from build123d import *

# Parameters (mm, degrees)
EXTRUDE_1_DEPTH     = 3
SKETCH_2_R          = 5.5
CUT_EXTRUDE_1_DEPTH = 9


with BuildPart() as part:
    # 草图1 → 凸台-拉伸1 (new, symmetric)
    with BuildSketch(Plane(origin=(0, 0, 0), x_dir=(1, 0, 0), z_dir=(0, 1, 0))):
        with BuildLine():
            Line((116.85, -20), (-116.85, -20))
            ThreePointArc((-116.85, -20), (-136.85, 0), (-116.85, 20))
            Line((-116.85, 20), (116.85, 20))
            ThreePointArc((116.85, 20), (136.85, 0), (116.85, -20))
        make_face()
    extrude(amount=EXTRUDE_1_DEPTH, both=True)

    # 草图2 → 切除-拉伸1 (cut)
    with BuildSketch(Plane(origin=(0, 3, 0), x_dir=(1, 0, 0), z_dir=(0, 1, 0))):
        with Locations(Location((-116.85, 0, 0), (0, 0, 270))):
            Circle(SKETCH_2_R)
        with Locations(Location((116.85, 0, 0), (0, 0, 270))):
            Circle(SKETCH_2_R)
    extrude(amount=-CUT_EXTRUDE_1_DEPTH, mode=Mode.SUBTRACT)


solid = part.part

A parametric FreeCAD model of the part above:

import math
import FreeCAD as App
import Part
import Sketcher

V = App.Vector

doc = App.newDocument("Part")
body = doc.addObject("PartDesign::Body", "Body")

# Sketch on XZ plane
sketch1 = doc.addObject("Sketcher::SketchObject", "Sketch")
body.addObject(sketch1)
sketch1.AttachmentSupport = (doc.XZ_Plane, [""])
sketch1.MapMode = "FlatFace"
sketch1.addGeometry(Part.LineSegment(V(-117, 20, 0), V(117, 20, 0)), False)
sketch1.addGeometry(Part.ArcOfCircle(Part.Circle(V(117, 0, 0), V(0, 0, 1), 20), math.radians(-90), math.radians(90)), False)
sketch1.addGeometry(Part.LineSegment(V(117, -20, 0), V(-117, -20, 0)), False)
sketch1.addGeometry(Part.ArcOfCircle(Part.Circle(V(-117, 0, 0), V(0, 0, 1), 20), math.radians(90), math.radians(270)), False)
sketch1.addConstraint(Sketcher.Constraint("Tangent", 0, 2, 1, 2))
sketch1.addConstraint(Sketcher.Constraint("Tangent", 1, 1, 2, 1))
sketch1.addConstraint(Sketcher.Constraint("Tangent", 2, 2, 3, 2))
sketch1.addConstraint(Sketcher.Constraint("Tangent", 3, 1, 0, 1))
sketch1.addConstraint(Sketcher.Constraint("Horizontal", 0))
sketch1.addConstraint(Sketcher.Constraint("Horizontal", 2))
sketch1.addConstraint(Sketcher.Constraint("Symmetric", 1, 3, 3, 3, -1, 1))
sketch1.addConstraint(Sketcher.Constraint("Radius", 1, 20.0))
sketch1.addConstraint(Sketcher.Constraint("DistanceX", 0, 1, 0, 2, 233.7))
pad1 = doc.addObject("PartDesign::Pad", "Pad")
body.addObject(pad1)
pad1.Profile = sketch1
pad1.Length = 6
pad1.Midplane = True

# Sketch on XZ plane
sketch2 = doc.addObject("Sketcher::SketchObject", "Sketch001")
body.addObject(sketch2)
sketch2.AttachmentSupport = (doc.XZ_Plane, [""])
sketch2.MapMode = "FlatFace"
sketch2.AttachmentOffset = App.Placement(V(0, 0, -3), App.Rotation())
sketch2.addGeometry(Part.Circle(V(-117, 0, 0), V(0, 0, 1), 6), False)
sketch2.addGeometry(Part.Circle(V(117, 0, 0), V(0, 0, 1), 6), False)
sketch2.addConstraint(Sketcher.Constraint("Equal", 0, 1))
sketch2.addConstraint(Sketcher.Constraint("Symmetric", 0, 3, 1, 3, -1, 1))
sketch2.addConstraint(Sketcher.Constraint("PointOnObject", 0, 3, -1))
sketch2.addConstraint(Sketcher.Constraint("Diameter", 0, 11.0))
sketch2.addConstraint(Sketcher.Constraint("DistanceX", 0, 3, 1, 3, 233.7))
pocket1 = doc.addObject("PartDesign::Pocket", "Pocket")
body.addObject(pocket1)
pocket1.Profile = sketch2
pocket1.Length = 9
pocket1.Reversed = True

doc.recompute()
